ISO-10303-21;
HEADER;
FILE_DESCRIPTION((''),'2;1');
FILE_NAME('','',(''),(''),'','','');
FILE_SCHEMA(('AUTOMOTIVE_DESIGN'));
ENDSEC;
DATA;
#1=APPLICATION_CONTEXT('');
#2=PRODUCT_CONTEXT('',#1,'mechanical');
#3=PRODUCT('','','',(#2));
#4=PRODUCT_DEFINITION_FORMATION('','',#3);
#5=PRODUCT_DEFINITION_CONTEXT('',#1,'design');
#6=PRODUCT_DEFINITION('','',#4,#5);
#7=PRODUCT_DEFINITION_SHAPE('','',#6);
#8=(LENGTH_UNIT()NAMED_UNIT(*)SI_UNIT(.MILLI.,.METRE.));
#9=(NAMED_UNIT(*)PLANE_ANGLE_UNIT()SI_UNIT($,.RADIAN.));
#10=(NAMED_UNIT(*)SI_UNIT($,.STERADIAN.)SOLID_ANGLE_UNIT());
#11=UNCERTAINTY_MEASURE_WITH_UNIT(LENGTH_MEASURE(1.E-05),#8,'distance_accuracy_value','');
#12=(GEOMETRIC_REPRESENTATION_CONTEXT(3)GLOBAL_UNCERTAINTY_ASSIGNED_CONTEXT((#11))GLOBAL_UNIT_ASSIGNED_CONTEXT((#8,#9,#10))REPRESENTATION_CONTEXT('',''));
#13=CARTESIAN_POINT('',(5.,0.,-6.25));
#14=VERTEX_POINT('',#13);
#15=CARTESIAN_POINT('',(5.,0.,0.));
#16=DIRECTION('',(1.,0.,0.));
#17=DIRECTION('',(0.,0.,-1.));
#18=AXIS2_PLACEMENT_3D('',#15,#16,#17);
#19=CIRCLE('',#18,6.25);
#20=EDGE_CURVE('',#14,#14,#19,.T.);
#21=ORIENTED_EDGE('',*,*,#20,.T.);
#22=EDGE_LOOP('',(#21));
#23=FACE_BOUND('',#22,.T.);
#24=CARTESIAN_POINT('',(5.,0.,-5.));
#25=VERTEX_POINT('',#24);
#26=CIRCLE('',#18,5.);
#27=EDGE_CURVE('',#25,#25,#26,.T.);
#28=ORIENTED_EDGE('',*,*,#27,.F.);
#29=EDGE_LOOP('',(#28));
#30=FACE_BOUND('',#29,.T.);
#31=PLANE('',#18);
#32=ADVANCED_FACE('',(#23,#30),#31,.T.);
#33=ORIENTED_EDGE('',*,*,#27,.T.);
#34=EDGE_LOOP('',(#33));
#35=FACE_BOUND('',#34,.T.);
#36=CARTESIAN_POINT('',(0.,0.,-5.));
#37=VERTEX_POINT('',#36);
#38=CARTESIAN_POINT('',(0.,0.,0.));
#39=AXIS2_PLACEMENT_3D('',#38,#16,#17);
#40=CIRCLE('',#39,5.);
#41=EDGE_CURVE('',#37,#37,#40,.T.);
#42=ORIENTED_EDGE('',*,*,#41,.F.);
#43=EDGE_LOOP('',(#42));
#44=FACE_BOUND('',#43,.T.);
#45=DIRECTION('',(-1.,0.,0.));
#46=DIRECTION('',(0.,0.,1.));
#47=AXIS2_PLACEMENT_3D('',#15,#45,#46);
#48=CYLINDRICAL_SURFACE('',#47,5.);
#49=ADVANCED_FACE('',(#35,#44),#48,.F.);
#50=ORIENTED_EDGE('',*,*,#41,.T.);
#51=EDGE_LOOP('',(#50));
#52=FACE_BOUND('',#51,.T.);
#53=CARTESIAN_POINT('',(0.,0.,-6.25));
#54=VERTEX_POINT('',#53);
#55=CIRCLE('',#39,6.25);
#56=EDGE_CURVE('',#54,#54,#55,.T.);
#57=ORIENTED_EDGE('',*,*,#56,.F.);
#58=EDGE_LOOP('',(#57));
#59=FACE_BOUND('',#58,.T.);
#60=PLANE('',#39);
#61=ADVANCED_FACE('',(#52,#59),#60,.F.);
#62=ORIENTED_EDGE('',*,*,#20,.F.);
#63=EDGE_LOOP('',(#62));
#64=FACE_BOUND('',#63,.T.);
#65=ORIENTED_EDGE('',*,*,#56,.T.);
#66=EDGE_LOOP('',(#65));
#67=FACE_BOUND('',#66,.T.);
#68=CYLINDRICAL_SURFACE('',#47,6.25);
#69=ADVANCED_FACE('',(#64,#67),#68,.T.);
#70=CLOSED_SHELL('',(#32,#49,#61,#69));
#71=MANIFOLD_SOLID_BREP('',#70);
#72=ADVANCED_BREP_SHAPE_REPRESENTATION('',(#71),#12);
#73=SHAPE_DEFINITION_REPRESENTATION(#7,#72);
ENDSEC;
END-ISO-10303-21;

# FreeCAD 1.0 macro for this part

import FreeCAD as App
import Part
import Sketcher
Q = App.Units.Quantity

doc = App.newDocument("Part")
body = doc.addObject("PartDesign::Body", "Body")

# Sketch on YZ plane
sketch1 = doc.addObject("Sketcher::SketchObject", "Sketch")
body.addObject(sketch1)
sketch1.AttachmentSupport = (doc.YZ_Plane, [""])
sketch1.MapMode = "FlatFace"
sketch1.addGeometry([
    Part.Circle(App.Vector(0, 0, 0), App.Vector(0, 0, 1), 6),
    Part.Circle(App.Vector(0, 0, 0), App.Vector(0, 0, 1), 5),
], False)
sketch1.addConstraint([
    Sketcher.Constraint("Coincident", 0, 3, -1, 1),
    Sketcher.Constraint("Coincident", 1, 3, -1, 1),
    Sketcher.Constraint("Diameter", 1, Q("10 mm")),
    Sketcher.Constraint("Diameter", 0, Q("12.5 mm")),
])
pad1 = doc.addObject("PartDesign::Pad", "Pad")
body.addObject(pad1)
pad1.Profile = sketch1
pad1.Length = 5

doc.recompute()
